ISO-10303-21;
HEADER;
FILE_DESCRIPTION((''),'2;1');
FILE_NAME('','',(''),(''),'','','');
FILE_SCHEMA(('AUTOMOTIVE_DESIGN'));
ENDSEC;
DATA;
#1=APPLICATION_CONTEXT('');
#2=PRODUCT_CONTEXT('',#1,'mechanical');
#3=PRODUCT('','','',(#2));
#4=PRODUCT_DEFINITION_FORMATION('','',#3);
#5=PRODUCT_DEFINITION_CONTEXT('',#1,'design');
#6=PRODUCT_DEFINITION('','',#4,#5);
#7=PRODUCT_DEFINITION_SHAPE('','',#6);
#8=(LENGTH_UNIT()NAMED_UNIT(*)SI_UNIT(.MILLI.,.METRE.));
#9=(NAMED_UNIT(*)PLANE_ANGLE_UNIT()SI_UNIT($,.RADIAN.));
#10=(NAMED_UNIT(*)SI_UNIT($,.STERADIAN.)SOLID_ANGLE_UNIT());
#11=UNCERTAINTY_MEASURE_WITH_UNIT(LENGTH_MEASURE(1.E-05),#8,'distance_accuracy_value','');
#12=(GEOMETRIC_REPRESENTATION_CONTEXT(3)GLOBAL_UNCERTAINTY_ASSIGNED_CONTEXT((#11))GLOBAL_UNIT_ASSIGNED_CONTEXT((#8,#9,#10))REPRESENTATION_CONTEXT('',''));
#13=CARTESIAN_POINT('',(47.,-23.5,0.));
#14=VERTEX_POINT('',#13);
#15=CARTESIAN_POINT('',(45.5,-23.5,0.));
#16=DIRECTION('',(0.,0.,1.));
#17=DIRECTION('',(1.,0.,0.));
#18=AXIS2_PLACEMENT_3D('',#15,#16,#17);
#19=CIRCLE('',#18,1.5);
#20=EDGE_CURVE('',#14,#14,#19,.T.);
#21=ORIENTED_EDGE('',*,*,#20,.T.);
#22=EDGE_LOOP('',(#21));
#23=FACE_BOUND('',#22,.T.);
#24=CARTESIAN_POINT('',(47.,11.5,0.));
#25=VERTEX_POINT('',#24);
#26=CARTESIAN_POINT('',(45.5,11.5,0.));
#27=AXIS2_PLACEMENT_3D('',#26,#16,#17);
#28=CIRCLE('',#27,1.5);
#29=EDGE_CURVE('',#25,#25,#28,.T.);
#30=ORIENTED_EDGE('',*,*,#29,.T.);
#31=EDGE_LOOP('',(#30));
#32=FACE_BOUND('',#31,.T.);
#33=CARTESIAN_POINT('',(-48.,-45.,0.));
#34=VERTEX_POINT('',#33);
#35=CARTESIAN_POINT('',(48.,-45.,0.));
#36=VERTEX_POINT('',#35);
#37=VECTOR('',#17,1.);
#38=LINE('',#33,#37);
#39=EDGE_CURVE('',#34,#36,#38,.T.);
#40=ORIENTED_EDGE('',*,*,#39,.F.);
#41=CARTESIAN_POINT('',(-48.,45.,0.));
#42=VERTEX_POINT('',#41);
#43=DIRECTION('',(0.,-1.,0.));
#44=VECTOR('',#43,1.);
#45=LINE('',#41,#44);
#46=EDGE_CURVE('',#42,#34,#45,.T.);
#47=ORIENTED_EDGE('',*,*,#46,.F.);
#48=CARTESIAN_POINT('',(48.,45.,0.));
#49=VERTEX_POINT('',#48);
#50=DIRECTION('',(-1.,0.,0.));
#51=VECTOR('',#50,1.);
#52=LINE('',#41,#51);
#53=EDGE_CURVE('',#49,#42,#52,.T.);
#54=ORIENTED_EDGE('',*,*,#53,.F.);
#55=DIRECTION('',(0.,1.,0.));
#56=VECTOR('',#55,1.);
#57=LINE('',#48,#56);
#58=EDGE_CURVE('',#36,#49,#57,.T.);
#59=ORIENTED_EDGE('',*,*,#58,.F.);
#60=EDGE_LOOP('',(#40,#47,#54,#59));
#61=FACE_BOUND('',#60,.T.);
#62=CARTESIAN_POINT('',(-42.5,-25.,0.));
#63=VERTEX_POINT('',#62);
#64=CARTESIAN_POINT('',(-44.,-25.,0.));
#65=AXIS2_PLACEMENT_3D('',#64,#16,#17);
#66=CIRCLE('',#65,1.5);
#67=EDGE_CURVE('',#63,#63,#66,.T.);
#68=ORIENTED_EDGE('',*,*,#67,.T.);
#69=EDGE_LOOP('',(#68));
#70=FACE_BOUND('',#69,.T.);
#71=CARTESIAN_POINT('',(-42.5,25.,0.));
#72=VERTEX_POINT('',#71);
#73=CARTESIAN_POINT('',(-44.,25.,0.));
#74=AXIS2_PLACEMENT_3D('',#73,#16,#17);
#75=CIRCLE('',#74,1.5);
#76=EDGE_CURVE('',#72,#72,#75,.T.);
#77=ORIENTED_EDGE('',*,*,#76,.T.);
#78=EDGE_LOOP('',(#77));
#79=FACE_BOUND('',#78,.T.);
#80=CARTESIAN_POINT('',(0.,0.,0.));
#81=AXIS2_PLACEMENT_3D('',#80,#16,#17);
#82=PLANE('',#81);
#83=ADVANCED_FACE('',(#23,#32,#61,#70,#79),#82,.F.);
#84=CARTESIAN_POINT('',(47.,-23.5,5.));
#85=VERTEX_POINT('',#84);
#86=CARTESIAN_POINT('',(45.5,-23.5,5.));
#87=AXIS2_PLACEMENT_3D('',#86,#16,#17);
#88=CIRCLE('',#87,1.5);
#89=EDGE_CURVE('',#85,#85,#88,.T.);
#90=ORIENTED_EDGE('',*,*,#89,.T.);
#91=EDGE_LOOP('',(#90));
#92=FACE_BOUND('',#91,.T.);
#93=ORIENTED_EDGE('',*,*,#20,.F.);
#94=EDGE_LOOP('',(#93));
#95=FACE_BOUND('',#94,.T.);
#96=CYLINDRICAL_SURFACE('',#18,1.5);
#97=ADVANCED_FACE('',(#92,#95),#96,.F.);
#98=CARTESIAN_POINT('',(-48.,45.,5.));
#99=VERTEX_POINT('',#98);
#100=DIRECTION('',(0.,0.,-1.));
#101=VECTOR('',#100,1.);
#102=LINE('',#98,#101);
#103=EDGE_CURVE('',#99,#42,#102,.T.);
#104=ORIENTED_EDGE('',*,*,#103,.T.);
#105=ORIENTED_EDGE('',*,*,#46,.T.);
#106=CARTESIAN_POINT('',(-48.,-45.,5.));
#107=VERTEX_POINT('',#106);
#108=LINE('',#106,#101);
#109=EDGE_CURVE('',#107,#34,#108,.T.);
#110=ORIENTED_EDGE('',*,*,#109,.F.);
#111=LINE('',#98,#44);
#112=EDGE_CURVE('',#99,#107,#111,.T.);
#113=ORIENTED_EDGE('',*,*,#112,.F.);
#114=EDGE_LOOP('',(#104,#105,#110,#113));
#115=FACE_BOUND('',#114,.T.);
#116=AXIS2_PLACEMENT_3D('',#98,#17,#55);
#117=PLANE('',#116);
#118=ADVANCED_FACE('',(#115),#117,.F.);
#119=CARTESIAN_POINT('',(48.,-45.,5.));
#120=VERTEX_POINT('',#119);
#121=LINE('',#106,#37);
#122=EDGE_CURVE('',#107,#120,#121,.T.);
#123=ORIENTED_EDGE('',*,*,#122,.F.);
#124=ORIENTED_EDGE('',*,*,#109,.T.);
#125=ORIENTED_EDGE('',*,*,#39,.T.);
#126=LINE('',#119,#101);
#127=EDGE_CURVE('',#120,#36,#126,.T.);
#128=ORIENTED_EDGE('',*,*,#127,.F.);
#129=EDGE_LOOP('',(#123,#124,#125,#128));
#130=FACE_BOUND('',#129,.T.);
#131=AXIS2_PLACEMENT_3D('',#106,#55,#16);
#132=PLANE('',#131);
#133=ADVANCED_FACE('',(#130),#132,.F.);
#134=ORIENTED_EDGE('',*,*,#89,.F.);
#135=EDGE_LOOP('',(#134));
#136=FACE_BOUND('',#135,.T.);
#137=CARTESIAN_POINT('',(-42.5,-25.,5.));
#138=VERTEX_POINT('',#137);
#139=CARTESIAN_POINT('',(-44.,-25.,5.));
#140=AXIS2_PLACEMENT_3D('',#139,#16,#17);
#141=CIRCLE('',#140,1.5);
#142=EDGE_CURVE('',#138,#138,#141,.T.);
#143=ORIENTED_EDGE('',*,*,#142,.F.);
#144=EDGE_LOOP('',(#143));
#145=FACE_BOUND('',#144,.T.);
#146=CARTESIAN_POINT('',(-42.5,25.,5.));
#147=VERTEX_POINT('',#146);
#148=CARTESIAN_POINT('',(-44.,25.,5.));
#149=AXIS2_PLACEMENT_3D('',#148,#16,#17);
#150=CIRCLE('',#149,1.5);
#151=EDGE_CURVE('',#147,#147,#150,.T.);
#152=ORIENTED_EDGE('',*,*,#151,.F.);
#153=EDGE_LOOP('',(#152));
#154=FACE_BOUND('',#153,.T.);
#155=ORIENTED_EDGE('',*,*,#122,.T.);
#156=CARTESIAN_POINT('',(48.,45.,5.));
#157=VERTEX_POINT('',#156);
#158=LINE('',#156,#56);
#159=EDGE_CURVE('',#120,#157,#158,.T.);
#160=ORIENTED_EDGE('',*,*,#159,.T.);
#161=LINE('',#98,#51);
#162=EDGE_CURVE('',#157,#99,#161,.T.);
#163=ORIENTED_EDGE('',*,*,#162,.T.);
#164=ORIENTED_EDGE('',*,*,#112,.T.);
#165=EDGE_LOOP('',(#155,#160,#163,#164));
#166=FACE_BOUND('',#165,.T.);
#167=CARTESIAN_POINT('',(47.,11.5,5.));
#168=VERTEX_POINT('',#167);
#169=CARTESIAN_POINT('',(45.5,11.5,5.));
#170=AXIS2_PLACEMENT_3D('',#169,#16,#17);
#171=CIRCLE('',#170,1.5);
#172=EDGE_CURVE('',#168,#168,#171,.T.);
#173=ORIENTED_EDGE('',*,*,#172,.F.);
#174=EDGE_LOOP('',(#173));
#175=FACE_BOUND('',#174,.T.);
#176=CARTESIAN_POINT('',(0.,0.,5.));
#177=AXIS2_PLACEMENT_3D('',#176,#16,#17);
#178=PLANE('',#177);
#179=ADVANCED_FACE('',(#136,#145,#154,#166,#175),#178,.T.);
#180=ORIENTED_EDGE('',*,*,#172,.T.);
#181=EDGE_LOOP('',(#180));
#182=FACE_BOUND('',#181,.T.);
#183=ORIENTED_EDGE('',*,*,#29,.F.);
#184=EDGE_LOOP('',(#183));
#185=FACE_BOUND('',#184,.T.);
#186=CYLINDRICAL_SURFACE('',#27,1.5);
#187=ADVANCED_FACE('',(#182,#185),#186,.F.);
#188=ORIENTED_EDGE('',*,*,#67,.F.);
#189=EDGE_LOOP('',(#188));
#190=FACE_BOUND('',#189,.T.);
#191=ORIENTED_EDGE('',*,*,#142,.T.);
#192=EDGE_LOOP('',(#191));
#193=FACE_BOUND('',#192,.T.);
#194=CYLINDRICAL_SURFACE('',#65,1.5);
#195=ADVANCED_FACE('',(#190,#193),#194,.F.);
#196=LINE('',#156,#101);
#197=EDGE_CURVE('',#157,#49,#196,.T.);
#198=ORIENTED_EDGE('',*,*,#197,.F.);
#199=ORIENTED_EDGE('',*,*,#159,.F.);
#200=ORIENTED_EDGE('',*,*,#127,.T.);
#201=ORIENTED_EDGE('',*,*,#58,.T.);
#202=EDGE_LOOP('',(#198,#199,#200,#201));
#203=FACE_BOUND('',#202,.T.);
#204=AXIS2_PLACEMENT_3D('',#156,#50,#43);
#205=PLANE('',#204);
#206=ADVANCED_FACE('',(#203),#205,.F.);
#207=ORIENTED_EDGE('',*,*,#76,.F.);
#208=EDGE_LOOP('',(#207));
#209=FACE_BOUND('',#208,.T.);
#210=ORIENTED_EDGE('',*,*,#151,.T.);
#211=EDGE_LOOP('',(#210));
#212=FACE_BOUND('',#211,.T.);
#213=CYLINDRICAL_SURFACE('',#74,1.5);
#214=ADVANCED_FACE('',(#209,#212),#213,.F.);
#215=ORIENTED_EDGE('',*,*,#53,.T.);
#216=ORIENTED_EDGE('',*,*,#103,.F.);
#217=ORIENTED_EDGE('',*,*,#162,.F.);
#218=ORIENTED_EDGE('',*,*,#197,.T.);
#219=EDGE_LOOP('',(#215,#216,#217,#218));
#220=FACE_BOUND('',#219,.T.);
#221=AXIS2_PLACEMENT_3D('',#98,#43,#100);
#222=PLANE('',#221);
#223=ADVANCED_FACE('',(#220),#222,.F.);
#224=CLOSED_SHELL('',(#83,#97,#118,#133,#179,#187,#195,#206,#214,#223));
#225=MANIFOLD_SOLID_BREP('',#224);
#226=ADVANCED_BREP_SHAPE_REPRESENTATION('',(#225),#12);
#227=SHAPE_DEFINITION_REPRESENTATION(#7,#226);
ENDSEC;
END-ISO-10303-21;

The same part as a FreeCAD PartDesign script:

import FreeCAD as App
import Part
import Sketcher

V = App.Vector

doc = App.newDocument("Part")
params = doc.addObject("Spreadsheet::Sheet", "Params")
for row, (alias, value) in enumerate([
    ("sketch1_width", "96 mm"),
    ("sketch1_height", "90 mm"),
    ("pad1_length", "5 mm"),
    ("sketch2_diameter", "3 mm"),
    ("sketch3_diameter", "3 mm"),
], start=1):
    params.set(f"A{row}", alias)
    params.set(f"B{row}", "=" + value)
    params.setAlias(f"B{row}", alias)

body = doc.addObject("PartDesign::Body", "Body")

sketch1 = body.newObject("Sketcher::SketchObject", "Sketch")
sketch1.AttachmentSupport = (doc.getObject("XY_Plane"), [""])
sketch1.MapMode = "FlatFace"
sketch1.addGeometry([
    Part.LineSegment(V(-48, 45, 0), V(-48, -45, 0)),
    Part.LineSegment(V(-48, -45, 0), V(48, -45, 0)),
    Part.LineSegment(V(48, -45, 0), V(48, 45, 0)),
    Part.LineSegment(V(48, 45, 0), V(-48, 45, 0)),
], False)
sketch1.addConstraint([
    Sketcher.Constraint("Coincident", 0, 2, 1, 1),
    Sketcher.Constraint("Coincident", 1, 2, 2, 1),
    Sketcher.Constraint("Coincident", 2, 2, 3, 1),
    Sketcher.Constraint("Coincident", 3, 2, 0, 1),
    Sketcher.Constraint("Vertical", 0),
    Sketcher.Constraint("Horizontal", 1),
    Sketcher.Constraint("Vertical", 2),
    Sketcher.Constraint("Horizontal", 3),
    Sketcher.Constraint("Symmetric", 0, 2, 2, 2, -1, 1),
    Sketcher.Constraint("DistanceX", 1, 1, 1, 2, 96.0),
    Sketcher.Constraint("DistanceY", 0, 2, 0, 1, 90.0),
])
sketch1.setExpression("Constraints[9]", "Params.sketch1_width")
sketch1.setExpression("Constraints[10]", "Params.sketch1_height")
pad1 = body.newObject("PartDesign::Pad", "Pad")
pad1.Profile = sketch1
pad1.setExpression("Length", "Params.pad1_length")

sketch2 = body.newObject("Sketcher::SketchObject", "Sketch001")
sketch2.AttachmentSupport = (doc.getObject("XY_Plane"), [""])
sketch2.MapMode = "FlatFace"
sketch2.AttachmentOffset = App.Placement(V(0, 0, 5), App.Rotation())
sketch2.addGeometry([
    Part.Circle(V(45.5, 11.5, 0), V(0, 0, 1), 1.5),
    Part.Circle(V(45.5, -23.5, 0), V(0, 0, 1), 1.5),
], False)
sketch2.addConstraint([
    Sketcher.Constraint("Equal", 0, 1),
    Sketcher.Constraint("Vertical", 0, 3, 1, 3),
    Sketcher.Constraint("Diameter", 0, 3.0),
    Sketcher.Constraint("DistanceY", 1, 3, 0, 3, 35.0),
    Sketcher.Constraint("DistanceX", -1, 1, 0, 3, 45.5),
    Sketcher.Constraint("DistanceY", -1, 1, 0, 3, 11.5),
])
sketch2.setExpression("Constraints[2]", "Params.sketch2_diameter")
pocket1 = body.newObject("PartDesign::Pocket", "Pocket")
pocket1.Profile = sketch2
pocket1.Type = "ThroughAll"

sketch3 = body.newObject("Sketcher::SketchObject", "Sketch002")
sketch3.AttachmentSupport = (doc.getObject("XY_Plane"), [""])
sketch3.MapMode = "FlatFace"
sketch3.AttachmentOffset = App.Placement(V(0, 0, 5), App.Rotation())
sketch3.addGeometry([
    Part.Circle(V(-44, 25, 0), V(0, 0, 1), 1.5),
    Part.Circle(V(-44, -25, 0), V(0, 0, 1), 1.5),
], False)
sketch3.addConstraint([
    Sketcher.Constraint("Equal", 0, 1),
    Sketcher.Constraint("Symmetric", 0, 3, 1, 3, -1),
    Sketcher.Constraint("Diameter", 0, 3.0),
    Sketcher.Constraint("DistanceX", 0, 3, -1, 1, 44.0),
    Sketcher.Constraint("DistanceY", -1, 1, 0, 3, 25.0),
])
sketch3.setExpression("Constraints[2]", "Params.sketch3_diameter")
pocket2 = body.newObject("PartDesign::Pocket", "Pocket001")
pocket2.Profile = sketch3
pocket2.Type = "ThroughAll"

doc.recompute()
